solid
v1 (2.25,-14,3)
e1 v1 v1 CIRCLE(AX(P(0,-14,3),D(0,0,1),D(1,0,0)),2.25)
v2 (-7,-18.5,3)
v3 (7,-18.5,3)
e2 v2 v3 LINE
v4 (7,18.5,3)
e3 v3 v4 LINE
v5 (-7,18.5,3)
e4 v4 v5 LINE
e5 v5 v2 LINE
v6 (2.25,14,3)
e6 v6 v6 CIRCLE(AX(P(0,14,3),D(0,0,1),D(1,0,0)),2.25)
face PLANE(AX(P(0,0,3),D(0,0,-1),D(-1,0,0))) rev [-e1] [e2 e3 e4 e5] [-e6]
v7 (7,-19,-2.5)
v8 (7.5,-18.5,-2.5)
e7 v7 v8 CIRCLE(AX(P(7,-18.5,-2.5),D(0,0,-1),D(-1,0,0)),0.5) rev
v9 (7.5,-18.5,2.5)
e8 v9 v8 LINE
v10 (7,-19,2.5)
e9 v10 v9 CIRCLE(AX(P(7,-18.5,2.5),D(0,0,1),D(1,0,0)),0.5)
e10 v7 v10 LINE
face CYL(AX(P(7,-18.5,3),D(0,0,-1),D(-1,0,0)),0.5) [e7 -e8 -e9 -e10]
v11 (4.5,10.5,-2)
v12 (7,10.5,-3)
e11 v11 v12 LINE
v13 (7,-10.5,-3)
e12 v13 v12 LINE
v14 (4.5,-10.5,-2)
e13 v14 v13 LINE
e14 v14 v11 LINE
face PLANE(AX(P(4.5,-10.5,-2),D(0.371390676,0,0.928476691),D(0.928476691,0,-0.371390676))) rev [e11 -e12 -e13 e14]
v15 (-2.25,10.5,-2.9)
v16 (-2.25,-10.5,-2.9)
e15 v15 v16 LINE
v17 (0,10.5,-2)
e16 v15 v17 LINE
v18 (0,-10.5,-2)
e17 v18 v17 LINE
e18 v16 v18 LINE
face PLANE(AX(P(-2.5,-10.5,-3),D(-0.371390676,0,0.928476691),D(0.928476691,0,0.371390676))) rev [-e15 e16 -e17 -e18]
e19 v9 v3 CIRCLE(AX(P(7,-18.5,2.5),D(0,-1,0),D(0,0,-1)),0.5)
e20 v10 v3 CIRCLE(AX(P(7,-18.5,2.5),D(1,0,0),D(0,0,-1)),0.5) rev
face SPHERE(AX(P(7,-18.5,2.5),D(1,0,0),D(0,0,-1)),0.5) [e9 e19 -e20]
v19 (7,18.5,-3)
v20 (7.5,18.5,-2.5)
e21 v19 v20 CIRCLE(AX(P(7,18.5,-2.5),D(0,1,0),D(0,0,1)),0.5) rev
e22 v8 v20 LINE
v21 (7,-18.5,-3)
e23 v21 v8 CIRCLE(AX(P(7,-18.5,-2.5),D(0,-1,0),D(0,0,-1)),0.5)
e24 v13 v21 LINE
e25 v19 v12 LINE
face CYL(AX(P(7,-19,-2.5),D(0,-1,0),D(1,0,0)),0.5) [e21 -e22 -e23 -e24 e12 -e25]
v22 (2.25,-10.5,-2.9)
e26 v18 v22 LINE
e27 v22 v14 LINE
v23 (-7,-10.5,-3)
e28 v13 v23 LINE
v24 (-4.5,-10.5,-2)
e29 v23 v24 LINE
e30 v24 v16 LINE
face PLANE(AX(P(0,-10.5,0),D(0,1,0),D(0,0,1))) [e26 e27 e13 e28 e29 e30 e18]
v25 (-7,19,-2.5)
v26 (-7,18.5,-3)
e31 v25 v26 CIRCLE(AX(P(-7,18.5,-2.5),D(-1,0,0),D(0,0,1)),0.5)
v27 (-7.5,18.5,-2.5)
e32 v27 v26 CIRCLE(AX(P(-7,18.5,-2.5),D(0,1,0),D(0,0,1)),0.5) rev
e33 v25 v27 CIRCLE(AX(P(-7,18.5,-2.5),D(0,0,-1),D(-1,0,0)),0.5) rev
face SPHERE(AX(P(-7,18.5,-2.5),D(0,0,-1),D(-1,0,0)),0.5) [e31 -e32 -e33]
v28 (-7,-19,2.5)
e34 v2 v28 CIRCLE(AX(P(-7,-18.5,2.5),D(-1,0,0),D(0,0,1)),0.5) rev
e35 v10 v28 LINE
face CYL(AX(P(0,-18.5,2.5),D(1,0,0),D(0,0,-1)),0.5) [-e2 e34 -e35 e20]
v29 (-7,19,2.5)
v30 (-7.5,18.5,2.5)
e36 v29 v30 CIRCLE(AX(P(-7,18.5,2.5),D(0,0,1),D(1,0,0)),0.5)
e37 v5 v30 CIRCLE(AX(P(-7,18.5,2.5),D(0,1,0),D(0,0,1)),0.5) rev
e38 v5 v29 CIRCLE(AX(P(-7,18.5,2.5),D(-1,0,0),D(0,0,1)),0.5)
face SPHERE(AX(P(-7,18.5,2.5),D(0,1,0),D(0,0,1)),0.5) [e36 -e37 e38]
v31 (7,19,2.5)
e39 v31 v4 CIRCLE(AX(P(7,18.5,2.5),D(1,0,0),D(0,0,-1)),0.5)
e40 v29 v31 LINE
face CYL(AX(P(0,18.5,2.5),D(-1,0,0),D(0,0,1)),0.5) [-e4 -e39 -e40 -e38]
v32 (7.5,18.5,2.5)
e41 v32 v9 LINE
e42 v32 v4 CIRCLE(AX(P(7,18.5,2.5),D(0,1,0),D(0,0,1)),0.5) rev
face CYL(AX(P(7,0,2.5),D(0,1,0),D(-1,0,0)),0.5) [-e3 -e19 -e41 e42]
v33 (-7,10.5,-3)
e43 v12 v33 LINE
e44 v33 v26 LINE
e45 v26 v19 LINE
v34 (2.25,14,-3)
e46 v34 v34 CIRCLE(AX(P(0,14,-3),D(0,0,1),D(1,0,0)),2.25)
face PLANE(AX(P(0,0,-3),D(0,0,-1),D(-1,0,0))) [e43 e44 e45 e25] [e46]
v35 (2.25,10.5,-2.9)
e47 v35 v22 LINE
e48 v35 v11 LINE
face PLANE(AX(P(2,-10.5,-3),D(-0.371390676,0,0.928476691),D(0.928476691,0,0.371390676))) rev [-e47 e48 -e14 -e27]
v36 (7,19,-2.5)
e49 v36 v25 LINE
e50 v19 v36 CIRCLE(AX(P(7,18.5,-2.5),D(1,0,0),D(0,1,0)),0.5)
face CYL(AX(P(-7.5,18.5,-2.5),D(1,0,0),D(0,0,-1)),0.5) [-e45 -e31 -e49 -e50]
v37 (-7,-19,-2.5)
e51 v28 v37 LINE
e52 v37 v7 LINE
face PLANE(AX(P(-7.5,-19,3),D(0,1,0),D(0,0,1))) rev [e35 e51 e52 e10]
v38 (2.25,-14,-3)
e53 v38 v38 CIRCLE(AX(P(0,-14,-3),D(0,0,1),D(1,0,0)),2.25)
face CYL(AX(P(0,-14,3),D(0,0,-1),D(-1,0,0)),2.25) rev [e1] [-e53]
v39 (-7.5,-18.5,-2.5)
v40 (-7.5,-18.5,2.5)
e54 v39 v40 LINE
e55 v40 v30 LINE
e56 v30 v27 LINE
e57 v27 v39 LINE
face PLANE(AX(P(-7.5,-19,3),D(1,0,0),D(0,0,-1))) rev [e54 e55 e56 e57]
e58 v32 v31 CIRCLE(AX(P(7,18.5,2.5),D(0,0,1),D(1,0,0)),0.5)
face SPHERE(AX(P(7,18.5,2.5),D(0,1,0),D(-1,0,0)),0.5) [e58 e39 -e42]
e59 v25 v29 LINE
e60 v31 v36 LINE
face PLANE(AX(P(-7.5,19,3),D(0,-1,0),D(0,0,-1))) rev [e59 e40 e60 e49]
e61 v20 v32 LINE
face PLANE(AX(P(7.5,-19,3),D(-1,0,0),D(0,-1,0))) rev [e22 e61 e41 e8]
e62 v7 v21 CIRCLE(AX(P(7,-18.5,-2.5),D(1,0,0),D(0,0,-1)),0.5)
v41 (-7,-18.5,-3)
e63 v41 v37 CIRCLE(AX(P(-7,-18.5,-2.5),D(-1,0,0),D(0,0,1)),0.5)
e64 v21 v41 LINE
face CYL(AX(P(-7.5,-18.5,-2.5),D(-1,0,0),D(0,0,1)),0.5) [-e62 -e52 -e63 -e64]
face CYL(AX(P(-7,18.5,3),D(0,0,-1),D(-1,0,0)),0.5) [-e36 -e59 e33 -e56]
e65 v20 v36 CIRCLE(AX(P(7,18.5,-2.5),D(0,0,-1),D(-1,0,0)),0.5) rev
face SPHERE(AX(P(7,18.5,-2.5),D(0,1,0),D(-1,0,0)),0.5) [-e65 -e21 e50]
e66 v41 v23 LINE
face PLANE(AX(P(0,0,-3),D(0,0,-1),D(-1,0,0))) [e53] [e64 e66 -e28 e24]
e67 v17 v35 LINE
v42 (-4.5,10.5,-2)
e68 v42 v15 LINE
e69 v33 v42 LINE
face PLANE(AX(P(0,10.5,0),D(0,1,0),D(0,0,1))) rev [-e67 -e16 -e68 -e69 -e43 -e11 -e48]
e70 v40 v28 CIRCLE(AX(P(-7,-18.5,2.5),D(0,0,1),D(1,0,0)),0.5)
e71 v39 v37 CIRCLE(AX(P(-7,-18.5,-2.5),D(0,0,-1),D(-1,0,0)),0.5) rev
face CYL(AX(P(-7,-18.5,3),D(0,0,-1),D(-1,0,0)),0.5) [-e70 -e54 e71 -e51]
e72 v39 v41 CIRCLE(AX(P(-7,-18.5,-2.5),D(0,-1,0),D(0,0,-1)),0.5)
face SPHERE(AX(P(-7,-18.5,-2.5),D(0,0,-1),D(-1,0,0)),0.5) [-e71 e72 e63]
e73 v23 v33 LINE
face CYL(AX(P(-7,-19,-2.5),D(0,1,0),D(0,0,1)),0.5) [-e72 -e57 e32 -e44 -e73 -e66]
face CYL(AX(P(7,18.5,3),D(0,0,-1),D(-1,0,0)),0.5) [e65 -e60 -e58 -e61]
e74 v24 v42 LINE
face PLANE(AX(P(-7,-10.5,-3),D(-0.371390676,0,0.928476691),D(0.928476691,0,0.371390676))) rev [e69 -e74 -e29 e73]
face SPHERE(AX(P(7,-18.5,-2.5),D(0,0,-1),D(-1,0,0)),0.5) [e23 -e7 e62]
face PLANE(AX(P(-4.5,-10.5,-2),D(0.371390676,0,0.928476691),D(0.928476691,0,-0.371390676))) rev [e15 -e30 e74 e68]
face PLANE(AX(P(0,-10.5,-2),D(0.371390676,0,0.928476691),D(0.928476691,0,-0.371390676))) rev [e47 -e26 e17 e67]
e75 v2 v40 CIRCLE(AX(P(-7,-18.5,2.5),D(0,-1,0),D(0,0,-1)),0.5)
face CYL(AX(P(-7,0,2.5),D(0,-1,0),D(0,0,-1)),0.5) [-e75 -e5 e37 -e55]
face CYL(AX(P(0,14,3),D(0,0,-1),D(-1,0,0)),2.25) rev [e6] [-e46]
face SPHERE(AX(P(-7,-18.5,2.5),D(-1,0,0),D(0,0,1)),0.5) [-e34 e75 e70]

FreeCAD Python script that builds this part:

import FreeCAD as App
import Part
import Sketcher
from FreeCAD import Vector


def edges_at(feature, points):
    """Names of the edges that pass closest to the given points."""
    edges = feature.Shape.Edges
    near = lambda p: min(range(len(edges)), key=lambda i: edges[i].distToShape(Part.Vertex(*p))[0])
    return sorted({f"Edge{near(p) + 1}" for p in points})

doc = App.newDocument("Part")
body = doc.addObject("PartDesign::Body", "Body")

# Sketch on XY plane
sketch1 = doc.addObject("Sketcher::SketchObject", "Sketch")
body.addObject(sketch1)
sketch1.AttachmentSupport = (doc.XY_Plane, [""])
sketch1.MapMode = "FlatFace"
sketch1.addGeometry(Part.LineSegment(Vector(-7.5, 19, 0), Vector(-7.5, -19, 0)), False)
sketch1.addGeometry(Part.LineSegment(Vector(-7.5, -19, 0), Vector(7.5, -19, 0)), False)
sketch1.addGeometry(Part.LineSegment(Vector(7.5, -19, 0), Vector(7.5, 19, 0)), False)
sketch1.addGeometry(Part.LineSegment(Vector(7.5, 19, 0), Vector(-7.5, 19, 0)), False)
sketch1.addGeometry(Part.Circle(Vector(0, -14, 0), Vector(0, 0, 1), 2.2), False)
sketch1.addGeometry(Part.Circle(Vector(0, 14, 0), Vector(0, 0, 1), 2.2), False)
sketch1.addConstraint(Sketcher.Constraint("Coincident", 0, 2, 1, 1))
sketch1.addConstraint(Sketcher.Constraint("Coincident", 1, 2, 2, 1))
sketch1.addConstraint(Sketcher.Constraint("Coincident", 2, 2, 3, 1))
sketch1.addConstraint(Sketcher.Constraint("Coincident", 3, 2, 0, 1))
sketch1.addConstraint(Sketcher.Constraint("Vertical", 0))
sketch1.addConstraint(Sketcher.Constraint("Horizontal", 1))
sketch1.addConstraint(Sketcher.Constraint("Vertical", 2))
sketch1.addConstraint(Sketcher.Constraint("Horizontal", 3))
sketch1.addConstraint(Sketcher.Constraint("Equal", 4, 5))
sketch1.addConstraint(Sketcher.Constraint("Symmetric", 4, 3, 5, 3, -1, 1))
sketch1.addConstraint(Sketcher.Constraint("Symmetric", 0, 2, 2, 2, -1, 1))
sketch1.addConstraint(Sketcher.Constraint("PointOnObject", 4, 3, -2))
sketch1.addConstraint(Sketcher.Constraint("Diameter", 4, 4.5))
sketch1.addConstraint(Sketcher.Constraint("DistanceX", 1, 1, 1, 2, 15.0))
sketch1.addConstraint(Sketcher.Constraint("DistanceY", 0, 2, 0, 1, 38.0))
sketch1.addConstraint(Sketcher.Constraint("DistanceY", 4, 3, -1, 1, 14.0))
pad1 = doc.addObject("PartDesign::Pad", "Pad")
body.addObject(pad1)
pad1.Profile = sketch1
pad1.Length = 6
pad1.Midplane = True
doc.recompute()

fillet = doc.addObject("PartDesign::Fillet", "Fillet")
body.addObject(fillet)
fillet.Base = (pad1, edges_at(pad1, [
    (-7.5, 0, 3),
    (0, -19, 3),
    (7.5, 0, 3),
    (0, -19, -3),
    (-7.5, 0, -3),
    (0, 19, -3),
    (7.5, 0, -3),
    (7.5, -19, 0),
    (-7.5, -19, 0),
    (-7.5, 19, 0),
    (7.5, 19, 0),
    (0, 19, 3),
]))
fillet.Radius = 0.5

# Sketch on XZ plane
sketch2 = doc.addObject("Sketcher::SketchObject", "Sketch001")
body.addObject(sketch2)
sketch2.AttachmentSupport = (doc.XZ_Plane, [""])
sketch2.MapMode = "FlatFace"
sketch2.addGeometry(Part.LineSegment(Vector(-7, -3, 0), Vector(-4.5, -2, 0)), False)
sketch2.addGeometry(Part.LineSegment(Vector(-4.5, -2, 0), Vector(-2, -3, 0)), False)
sketch2.addGeometry(Part.LineSegment(Vector(-2, -3, 0), Vector(-7, -3, 0)), False)
sketch2.addConstraint(Sketcher.Constraint("Coincident", 0, 2, 1, 1))
sketch2.addConstraint(Sketcher.Constraint("Coincident", 1, 2, 2, 1))
sketch2.addConstraint(Sketcher.Constraint("Coincident", 2, 2, 0, 1))
sketch2.addConstraint(Sketcher.Constraint("Horizontal", 2))
sketch2.addConstraint(Sketcher.Constraint("Equal", 0, 1))
sketch2.addConstraint(Sketcher.Constraint("DistanceX", 2, 2, 2, 1, 5.0))
sketch2.addConstraint(Sketcher.Constraint("DistanceY", 0, 2, -1, 1, 2.0))
sketch2.addConstraint(Sketcher.Constraint("DistanceX", 1, 2, -1, 1, 2.0))
sketch2.addConstraint(Sketcher.Constraint("DistanceY", 1, 2, -1, 1, 3.0))
pocket1 = doc.addObject("PartDesign::Pocket", "Pocket")
body.addObject(pocket1)
pocket1.Profile = sketch2
pocket1.Length = 21
pocket1.Midplane = True
doc.recompute()

linearpattern = doc.addObject("PartDesign::LinearPattern", "LinearPattern")
body.addObject(linearpattern)
linearpattern.Originals = [pocket1]
linearpattern.Direction = (doc.X_Axis, [""])
linearpattern.Mode = "offset"
linearpattern.Offset = 4.5
linearpattern.Occurrences = 3
body.Tip = linearpattern

doc.recompute()
